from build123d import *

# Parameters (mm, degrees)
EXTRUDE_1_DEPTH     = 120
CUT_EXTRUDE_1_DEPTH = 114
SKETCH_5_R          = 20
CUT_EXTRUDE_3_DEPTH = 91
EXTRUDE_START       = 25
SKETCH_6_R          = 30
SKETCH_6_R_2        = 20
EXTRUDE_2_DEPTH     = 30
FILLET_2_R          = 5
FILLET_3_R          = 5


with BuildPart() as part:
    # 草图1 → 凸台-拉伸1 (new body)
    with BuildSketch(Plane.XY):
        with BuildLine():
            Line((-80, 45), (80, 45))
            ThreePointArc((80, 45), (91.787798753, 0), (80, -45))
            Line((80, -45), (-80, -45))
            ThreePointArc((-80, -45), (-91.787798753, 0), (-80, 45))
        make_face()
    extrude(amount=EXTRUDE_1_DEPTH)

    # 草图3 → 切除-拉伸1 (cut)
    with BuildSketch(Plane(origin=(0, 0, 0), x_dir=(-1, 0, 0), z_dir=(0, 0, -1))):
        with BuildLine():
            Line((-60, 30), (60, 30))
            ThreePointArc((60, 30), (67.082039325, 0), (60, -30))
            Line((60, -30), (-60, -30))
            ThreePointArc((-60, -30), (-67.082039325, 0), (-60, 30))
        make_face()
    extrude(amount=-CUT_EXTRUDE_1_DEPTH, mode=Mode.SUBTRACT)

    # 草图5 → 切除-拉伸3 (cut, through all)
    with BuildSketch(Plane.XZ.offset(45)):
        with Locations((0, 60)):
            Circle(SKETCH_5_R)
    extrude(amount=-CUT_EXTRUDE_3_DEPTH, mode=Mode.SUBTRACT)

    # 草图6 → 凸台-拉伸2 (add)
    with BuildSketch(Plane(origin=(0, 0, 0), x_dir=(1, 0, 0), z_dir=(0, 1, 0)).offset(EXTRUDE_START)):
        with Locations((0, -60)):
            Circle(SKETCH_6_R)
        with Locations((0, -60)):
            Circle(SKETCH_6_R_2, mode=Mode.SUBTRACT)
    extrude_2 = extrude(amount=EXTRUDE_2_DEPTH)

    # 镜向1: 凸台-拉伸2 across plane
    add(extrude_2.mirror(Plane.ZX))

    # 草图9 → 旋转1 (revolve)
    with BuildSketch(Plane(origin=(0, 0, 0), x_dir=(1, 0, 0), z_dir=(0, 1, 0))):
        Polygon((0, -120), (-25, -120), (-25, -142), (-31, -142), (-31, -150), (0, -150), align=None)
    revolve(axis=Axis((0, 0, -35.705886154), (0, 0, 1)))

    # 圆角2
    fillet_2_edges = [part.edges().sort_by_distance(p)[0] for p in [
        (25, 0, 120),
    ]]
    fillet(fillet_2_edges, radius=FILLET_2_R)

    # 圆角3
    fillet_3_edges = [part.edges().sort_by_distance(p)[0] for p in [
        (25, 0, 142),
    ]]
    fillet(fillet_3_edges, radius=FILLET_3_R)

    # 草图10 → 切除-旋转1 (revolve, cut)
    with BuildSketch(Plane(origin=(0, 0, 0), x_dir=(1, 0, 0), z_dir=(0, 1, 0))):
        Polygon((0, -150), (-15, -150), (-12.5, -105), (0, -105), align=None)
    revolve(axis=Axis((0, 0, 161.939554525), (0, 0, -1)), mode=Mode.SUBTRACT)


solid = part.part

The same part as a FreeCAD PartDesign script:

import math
import FreeCAD as App
import Part
import Sketcher
from FreeCAD import Vector
Q = App.Units.Quantity


def edges_at(feature, points):
    """Names of the edges that pass closest to the given points."""
    edges = feature.Shape.Edges
    near = lambda p: min(range(len(edges)), key=lambda i: edges[i].distToShape(Part.Vertex(*p))[0])
    return sorted({f"Edge{near(p) + 1}" for p in points})

doc = App.newDocument("Part")
body = doc.addObject("PartDesign::Body", "Body")

# Sketch on XY plane
sketch1 = doc.addObject("Sketcher::SketchObject", "Sketch")
body.addObject(sketch1)
sketch1.AttachmentSupport = (doc.XY_Plane, [""])
sketch1.MapMode = "FlatFace"
sketch1.addGeometry([
    Part.LineSegment(Vector(80, 45, 0), Vector(-80, 45, 0)),
    Part.ArcOfCircle(Part.Circle(Vector(0, 0, 0), Vector(0, 0, 1), 91.787799), math.radians(150.642246), math.radians(209.357754)),
    Part.LineSegment(Vector(-80, -45, 0), Vector(80, -45, 0)),
    Part.ArcOfCircle(Part.Circle(Vector(0, 0, 0), Vector(0, 0, 1), 91.787799), math.radians(-29.357754), math.radians(29.357754)),
], False)
sketch1.addConstraint([
    Sketcher.Constraint("Coincident", 0, 2, 1, 1),
    Sketcher.Constraint("Coincident", 1, 2, 2, 1),
    Sketcher.Constraint("Coincident", 2, 2, 3, 1),
    Sketcher.Constraint("Coincident", 3, 2, 0, 1),
    Sketcher.Constraint("Horizontal", 0),
    Sketcher.Constraint("Horizontal", 2),
    Sketcher.Constraint("Coincident", 1, 3, -1, 1),
    Sketcher.Constraint("Coincident", 3, 3, -1, 1),
    Sketcher.Constraint("Equal", 1, 3),
    Sketcher.Constraint("Vertical", 0, 2, 1, 2),
    Sketcher.Constraint("DistanceX", 0, 2, 0, 1, Q("160 mm")),
    Sketcher.Constraint("DistanceY", -1, 1, 0, 2, Q("45 mm")),
])
pad1 = doc.addObject("PartDesign::Pad", "Pad")
body.addObject(pad1)
pad1.Profile = sketch1
pad1.Length = 120

# Sketch on XY plane
sketch2 = doc.addObject("Sketcher::SketchObject", "Sketch001")
body.addObject(sketch2)
sketch2.AttachmentSupport = (doc.XY_Plane, [""])
sketch2.MapMode = "FlatFace"
sketch2.addGeometry([
    Part.LineSegment(Vector(-60, 30, 0), Vector(60, 30, 0)),
    Part.ArcOfCircle(Part.Circle(Vector(0, 0, 0), Vector(0, 0, 1), 67.082039), math.radians(-26.565051), math.radians(26.565051)),
    Part.LineSegment(Vector(60, -30, 0), Vector(-60, -30, 0)),
    Part.ArcOfCircle(Part.Circle(Vector(0, 0, 0), Vector(0, 0, 1), 67.082039), math.radians(153.434949), math.radians(206.565051)),
], False)
sketch2.addConstraint([
    Sketcher.Constraint("Coincident", 0, 2, 1, 2),
    Sketcher.Constraint("Coincident", 1, 1, 2, 1),
    Sketcher.Constraint("Coincident", 2, 2, 3, 2),
    Sketcher.Constraint("Coincident", 3, 1, 0, 1),
    Sketcher.Constraint("Horizontal", 0),
    Sketcher.Constraint("Horizontal", 2),
    Sketcher.Constraint("Coincident", 1, 3, -1, 1),
    Sketcher.Constraint("Coincident", 3, 3, -1, 1),
    Sketcher.Constraint("Equal", 1, 3),
    Sketcher.Constraint("Vertical", 0, 2, 1, 1),
    Sketcher.Constraint("DistanceX", 0, 1, 0, 2, Q("120 mm")),
    Sketcher.Constraint("DistanceY", -1, 1, 0, 2, Q("30 mm")),
])
pocket1 = doc.addObject("PartDesign::Pocket", "Pocket")
body.addObject(pocket1)
pocket1.Profile = sketch2
pocket1.Length = 114
pocket1.Reversed = True

# Sketch on XZ plane
sketch3 = doc.addObject("Sketcher::SketchObject", "Sketch002")
body.addObject(sketch3)
sketch3.AttachmentSupport = (doc.XZ_Plane, [""])
sketch3.MapMode = "FlatFace"
sketch3.AttachmentOffset = App.Placement(Vector(0, 0, 45), App.Rotation())
sketch3.addGeometry(Part.Circle(Vector(0, 60, 0), Vector(0, 0, 1), 20), False)
sketch3.addConstraint([
    Sketcher.Constraint("PointOnObject", 0, 3, -2),
    Sketcher.Constraint("Diameter", 0, Q("40 mm")),
    Sketcher.Constraint("DistanceY", -1, 1, 0, 3, Q("60 mm")),
])
pocket2 = doc.addObject("PartDesign::Pocket", "Pocket001")
body.addObject(pocket2)
pocket2.Profile = sketch3
pocket2.Type = "ThroughAll"

# Sketch on XZ plane
sketch4 = doc.addObject("Sketcher::SketchObject", "Sketch003")
body.addObject(sketch4)
sketch4.AttachmentSupport = (doc.XZ_Plane, [""])
sketch4.MapMode = "FlatFace"
sketch4.AttachmentOffset = App.Placement(Vector(0, 0, -25), App.Rotation())
sketch4.addGeometry([
    Part.Circle(Vector(0, 60, 0), Vector(0, 0, 1), 30),
    Part.Circle(Vector(0, 60, 0), Vector(0, 0, 1), 20),
], False)
sketch4.addConstraint([
    Sketcher.Constraint("Coincident", 1, 3, 0, 3),
    Sketcher.Constraint("PointOnObject", 0, 3, -2),
    Sketcher.Constraint("Diameter", 0, Q("60 mm")),
    Sketcher.Constraint("Diameter", 1, Q("40 mm")),
    Sketcher.Constraint("DistanceY", -1, 1, 0, 3, Q("60 mm")),
])
pad2 = doc.addObject("PartDesign::Pad", "Pad001")
body.addObject(pad2)
pad2.Profile = sketch4
pad2.Length = 30
pad2.Reversed = True
doc.recompute()

mirrored = doc.addObject("PartDesign::Mirrored", "Mirrored")
body.addObject(mirrored)
mirrored.Originals = [pad2]
mirrored.MirrorPlane = (doc.XZ_Plane, [""])
body.Tip = mirrored

# Sketch on XZ plane
sketch5 = doc.addObject("Sketcher::SketchObject", "Sketch004")
body.addObject(sketch5)
sketch5.AttachmentSupport = (doc.XZ_Plane, [""])
sketch5.MapMode = "FlatFace"
sketch5.addGeometry([
    Part.LineSegment(Vector(0, 120, 0), Vector(-25, 120, 0)),  # 0
    Part.LineSegment(Vector(-25, 120, 0), Vector(-25, 142, 0)),  # 1
    Part.LineSegment(Vector(-25, 142, 0), Vector(-31, 142, 0)),  # 2
    Part.LineSegment(Vector(-31, 142, 0), Vector(-31, 150, 0)),  # 3
    Part.LineSegment(Vector(-31, 150, 0), Vector(0, 150, 0)),  # 4
    Part.LineSegment(Vector(0, 150, 0), Vector(0, 120, 0)),  # 5
], False)
sketch5.addConstraint([
    Sketcher.Constraint("Coincident", 0, 2, 1, 1),
    Sketcher.Constraint("Coincident", 1, 2, 2, 1),
    Sketcher.Constraint("Coincident", 2, 2, 3, 1),
    Sketcher.Constraint("Coincident", 3, 2, 4, 1),
    Sketcher.Constraint("Coincident", 4, 2, 5, 1),
    Sketcher.Constraint("Coincident", 5, 2, 0, 1),
    Sketcher.Constraint("Horizontal", 0),
    Sketcher.Constraint("Vertical", 1),
    Sketcher.Constraint("Horizontal", 2),
    Sketcher.Constraint("Vertical", 3),
    Sketcher.Constraint("Horizontal", 4),
    Sketcher.Constraint("Vertical", 5),
    Sketcher.Constraint("PointOnObject", 4, 2, -2),
    Sketcher.Constraint("DistanceX", 0, 2, 0, 1, Q("25 mm")),
    Sketcher.Constraint("DistanceX", 2, 2, 2, 1, Q("6 mm")),
    Sketcher.Constraint("DistanceY", 1, 1, 1, 2, Q("22 mm")),
    Sketcher.Constraint("DistanceY", 3, 1, 3, 2, Q("8 mm")),
    Sketcher.Constraint("DistanceY", -1, 1, 0, 2, Q("120 mm")),
])
revolution = doc.addObject("PartDesign::Revolution", "Revolution")
body.addObject(revolution)
revolution.Profile = sketch5
revolution.ReferenceAxis = (sketch5, ["V_Axis"])
revolution.Angle = 360
doc.recompute()

fillet = doc.addObject("PartDesign::Fillet", "Fillet")
body.addObject(fillet)
fillet.Base = (revolution, edges_at(revolution, [(25, 0, 120)]))
fillet.Radius = 5
doc.recompute()

fillet2 = doc.addObject("PartDesign::Fillet", "Fillet001")
body.addObject(fillet2)
fillet2.Base = (fillet, edges_at(fillet, [(25, 0, 142)]))
fillet2.Radius = 5

# Sketch on XZ plane
sketch6 = doc.addObject("Sketcher::SketchObject", "Sketch005")
body.addObject(sketch6)
sketch6.AttachmentSupport = (doc.XZ_Plane, [""])
sketch6.MapMode = "FlatFace"
sketch6.addGeometry([
    Part.LineSegment(Vector(-15, 150, 0), Vector(0, 150, 0)),
    Part.LineSegment(Vector(0, 150, 0), Vector(0, 105, 0)),
    Part.LineSegment(Vector(0, 105, 0), Vector(-12.5, 105, 0)),
    Part.LineSegment(Vector(-12.5, 105, 0), Vector(-15, 150, 0)),
], False)
sketch6.addConstraint([
    Sketcher.Constraint("Coincident", 0, 2, 1, 1),
    Sketcher.Constraint("Coincident", 1, 2, 2, 1),
    Sketcher.Constraint("Coincident", 2, 2, 3, 1),
    Sketcher.Constraint("Coincident", 3, 2, 0, 1),
    Sketcher.Constraint("Horizontal", 0),
    Sketcher.Constraint("Vertical", 1),
    Sketcher.Constraint("Horizontal", 2),
    Sketcher.Constraint("PointOnObject", 0, 2, -2),
    Sketcher.Constraint("DistanceX", 0, 1, 0, 2, Q("15 mm")),
    Sketcher.Constraint("DistanceY", 1, 2, 1, 1, Q("45 mm")),
    Sketcher.Constraint("DistanceX", 2, 2, 2, 1, Q("12.5 mm")),
    Sketcher.Constraint("DistanceY", -1, 1, 0, 2, Q("150 mm")),
])
groove = doc.addObject("PartDesign::Groove", "Groove")
body.addObject(groove)
groove.Profile = sketch6
groove.ReferenceAxis = (sketch6, ["V_Axis"])
groove.Angle = 360

doc.recompute()
